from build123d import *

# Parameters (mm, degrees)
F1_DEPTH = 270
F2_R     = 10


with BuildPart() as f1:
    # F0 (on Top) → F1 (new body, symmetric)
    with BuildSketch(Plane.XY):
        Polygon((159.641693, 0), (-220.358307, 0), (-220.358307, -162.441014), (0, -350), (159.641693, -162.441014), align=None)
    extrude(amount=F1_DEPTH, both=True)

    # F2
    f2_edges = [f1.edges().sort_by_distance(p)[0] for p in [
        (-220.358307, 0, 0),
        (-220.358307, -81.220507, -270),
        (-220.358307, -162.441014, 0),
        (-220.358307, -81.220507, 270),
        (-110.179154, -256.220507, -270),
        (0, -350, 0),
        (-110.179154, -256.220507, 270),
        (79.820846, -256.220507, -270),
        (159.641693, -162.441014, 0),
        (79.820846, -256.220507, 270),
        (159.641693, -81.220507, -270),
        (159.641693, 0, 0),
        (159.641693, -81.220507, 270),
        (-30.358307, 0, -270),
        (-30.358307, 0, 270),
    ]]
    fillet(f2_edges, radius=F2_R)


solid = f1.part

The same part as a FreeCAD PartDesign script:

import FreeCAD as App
import Part
import Sketcher
from FreeCAD import Vector

doc = App.newDocument("Part")
body = doc.addObject("PartDesign::Body", "Body")

# Sketch on XY plane
sketch1 = body.newObject("Sketcher::SketchObject", "Sketch")
sketch1.AttachmentSupport = (doc.getObject("XY_Plane"), [""])
sketch1.MapMode = "FlatFace"
sketch1.addGeometry([
    Part.LineSegment(Vector(160, 0, 0), Vector(-220, 0, 0)),  # 0
    Part.LineSegment(Vector(-220, 0, 0), Vector(-220, -162, 0)),  # 1
    Part.LineSegment(Vector(-220, -162, 0), Vector(0, -350, 0)),  # 2
    Part.LineSegment(Vector(0, -350, 0), Vector(160, -162, 0)),  # 3
    Part.LineSegment(Vector(160, -162, 0), Vector(160, 0, 0)),  # 4
], False)
sketch1.addConstraint([
    Sketcher.Constraint("Coincident", 0, 2, 1, 1),
    Sketcher.Constraint("Coincident", 1, 2, 2, 1),
    Sketcher.Constraint("Coincident", 2, 2, 3, 1),
    Sketcher.Constraint("Coincident", 3, 2, 4, 1),
    Sketcher.Constraint("Coincident", 4, 2, 0, 1),
    Sketcher.Constraint("Horizontal", 0),
    Sketcher.Constraint("Vertical", 1),
    Sketcher.Constraint("Vertical", 4),
    Sketcher.Constraint("PointOnObject", 0, 2, -1),
    Sketcher.Constraint("PointOnObject", 2, 2, -2),
    Sketcher.Constraint("Perpendicular", 2, 3),
    Sketcher.Constraint("Horizontal", 1, 2, 3, 2),
    Sketcher.Constraint("DistanceX", 0, 2, 0, 1, 380.0),
    Sketcher.Constraint("DistanceY", 2, 2, -1, 1, 350.0),
    Sketcher.Constraint("Distance", 3, 246.300311),
])
pad1 = body.newObject("PartDesign::Pad", "Pad")
pad1.Profile = sketch1
pad1.Length = 540
pad1.Midplane = True
doc.recompute()

fillet = body.newObject("PartDesign::Fillet", "Fillet")
fillet.Base = (pad1, ["Edge1"])
fillet.UseAllEdges = True
fillet.Radius = 10

doc.recompute()
